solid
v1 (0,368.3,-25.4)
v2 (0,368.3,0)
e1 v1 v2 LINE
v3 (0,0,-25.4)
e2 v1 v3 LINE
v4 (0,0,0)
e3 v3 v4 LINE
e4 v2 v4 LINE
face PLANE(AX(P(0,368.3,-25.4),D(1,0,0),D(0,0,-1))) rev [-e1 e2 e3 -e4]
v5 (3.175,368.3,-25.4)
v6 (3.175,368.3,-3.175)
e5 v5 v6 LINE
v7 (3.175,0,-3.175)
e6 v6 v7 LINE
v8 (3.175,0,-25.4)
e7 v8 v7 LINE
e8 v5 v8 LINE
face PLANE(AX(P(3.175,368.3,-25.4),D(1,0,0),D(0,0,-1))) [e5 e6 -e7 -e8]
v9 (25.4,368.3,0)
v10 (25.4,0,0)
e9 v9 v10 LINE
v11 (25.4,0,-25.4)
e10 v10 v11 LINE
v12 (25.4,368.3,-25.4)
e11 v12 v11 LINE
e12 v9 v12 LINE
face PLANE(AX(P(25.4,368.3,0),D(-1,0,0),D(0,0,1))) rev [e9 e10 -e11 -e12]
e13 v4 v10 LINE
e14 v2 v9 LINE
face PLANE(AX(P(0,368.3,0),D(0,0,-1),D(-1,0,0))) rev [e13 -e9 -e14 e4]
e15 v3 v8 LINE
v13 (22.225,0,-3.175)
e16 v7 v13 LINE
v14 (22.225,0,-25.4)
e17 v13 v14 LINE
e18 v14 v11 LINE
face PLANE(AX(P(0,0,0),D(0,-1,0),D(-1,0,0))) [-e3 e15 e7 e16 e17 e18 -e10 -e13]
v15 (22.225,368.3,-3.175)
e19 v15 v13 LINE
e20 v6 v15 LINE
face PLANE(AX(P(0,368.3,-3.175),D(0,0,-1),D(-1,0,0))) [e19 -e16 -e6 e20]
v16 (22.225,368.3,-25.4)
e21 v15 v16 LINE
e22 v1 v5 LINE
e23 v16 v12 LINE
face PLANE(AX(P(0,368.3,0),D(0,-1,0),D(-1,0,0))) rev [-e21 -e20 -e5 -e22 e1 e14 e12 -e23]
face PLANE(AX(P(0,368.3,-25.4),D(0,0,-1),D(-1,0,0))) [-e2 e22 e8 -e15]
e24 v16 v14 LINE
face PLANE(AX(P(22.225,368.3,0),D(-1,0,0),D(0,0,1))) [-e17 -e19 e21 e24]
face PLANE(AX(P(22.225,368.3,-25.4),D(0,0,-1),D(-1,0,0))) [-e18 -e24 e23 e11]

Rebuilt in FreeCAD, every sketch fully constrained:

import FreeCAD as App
import Part
import Sketcher

V = App.Vector
Q = App.Units.Quantity

doc = App.newDocument("Part")
body = doc.addObject("PartDesign::Body", "Body")

sketch1 = body.newObject("Sketcher::SketchObject", "Sketch")
sketch1.AttachmentSupport = (doc.getObject("XZ_Plane"), [""])
sketch1.MapMode = "FlatFace"
sketch1.addGeometry([
    Part.LineSegment(V(0, -25.4, 0), V(0, 0, 0)),
    Part.LineSegment(V(0, 0, 0), V(25.4, 0, 0)),
    Part.LineSegment(V(25.4, 0, 0), V(25.4, -25.4, 0)),
    Part.LineSegment(V(25.4, -25.4, 0), V(22.225, -25.4, 0)),
    Part.LineSegment(V(22.225, -25.4, 0), V(22.225, -3.175, 0)),
    Part.LineSegment(V(22.225, -3.175, 0), V(3.175, -3.175, 0)),
    Part.LineSegment(V(3.175, -3.175, 0), V(3.175, -25.4, 0)),
    Part.LineSegment(V(3.175, -25.4, 0), V(0, -25.4, 0)),
], False)
sketch1.addConstraint([
    Sketcher.Constraint("Coincident", 0, 2, 1, 1),
    Sketcher.Constraint("Coincident", 1, 2, 2, 1),
    Sketcher.Constraint("Coincident", 2, 2, 3, 1),
    Sketcher.Constraint("Coincident", 3, 2, 4, 1),
    Sketcher.Constraint("Coincident", 4, 2, 5, 1),
    Sketcher.Constraint("Coincident", 5, 2, 6, 1),
    Sketcher.Constraint("Coincident", 6, 2, 7, 1),
    Sketcher.Constraint("Coincident", 7, 2, 0, 1),
    Sketcher.Constraint("Vertical", 0),
    Sketcher.Constraint("Horizontal", 1),
    Sketcher.Constraint("Vertical", 2),
    Sketcher.Constraint("Horizontal", 3),
    Sketcher.Constraint("Vertical", 4),
    Sketcher.Constraint("Horizontal", 5),
    Sketcher.Constraint("Vertical", 6),
    Sketcher.Constraint("Horizontal", 7),
    Sketcher.Constraint("Coincident", 0, 2, -1, 1),
    Sketcher.Constraint("Horizontal", 3, 2, 6, 2),
    Sketcher.Constraint("Equal", 3, 7),
    Sketcher.Constraint("Equal", 1, 0),
    Sketcher.Constraint("DistanceX", 1, 1, 1, 2, Q("1 in")),
    Sketcher.Constraint("DistanceX", 5, 2, 5, 1, Q("0.75 in")),
    Sketcher.Constraint("DistanceY", 4, 1, 4, 2, Q("0.875 in")),
])
pad1 = body.newObject("PartDesign::Pad", "Pad")
pad1.Profile = sketch1
pad1.Length = Q("14.5 in")
pad1.Reversed = True

doc.recompute()
